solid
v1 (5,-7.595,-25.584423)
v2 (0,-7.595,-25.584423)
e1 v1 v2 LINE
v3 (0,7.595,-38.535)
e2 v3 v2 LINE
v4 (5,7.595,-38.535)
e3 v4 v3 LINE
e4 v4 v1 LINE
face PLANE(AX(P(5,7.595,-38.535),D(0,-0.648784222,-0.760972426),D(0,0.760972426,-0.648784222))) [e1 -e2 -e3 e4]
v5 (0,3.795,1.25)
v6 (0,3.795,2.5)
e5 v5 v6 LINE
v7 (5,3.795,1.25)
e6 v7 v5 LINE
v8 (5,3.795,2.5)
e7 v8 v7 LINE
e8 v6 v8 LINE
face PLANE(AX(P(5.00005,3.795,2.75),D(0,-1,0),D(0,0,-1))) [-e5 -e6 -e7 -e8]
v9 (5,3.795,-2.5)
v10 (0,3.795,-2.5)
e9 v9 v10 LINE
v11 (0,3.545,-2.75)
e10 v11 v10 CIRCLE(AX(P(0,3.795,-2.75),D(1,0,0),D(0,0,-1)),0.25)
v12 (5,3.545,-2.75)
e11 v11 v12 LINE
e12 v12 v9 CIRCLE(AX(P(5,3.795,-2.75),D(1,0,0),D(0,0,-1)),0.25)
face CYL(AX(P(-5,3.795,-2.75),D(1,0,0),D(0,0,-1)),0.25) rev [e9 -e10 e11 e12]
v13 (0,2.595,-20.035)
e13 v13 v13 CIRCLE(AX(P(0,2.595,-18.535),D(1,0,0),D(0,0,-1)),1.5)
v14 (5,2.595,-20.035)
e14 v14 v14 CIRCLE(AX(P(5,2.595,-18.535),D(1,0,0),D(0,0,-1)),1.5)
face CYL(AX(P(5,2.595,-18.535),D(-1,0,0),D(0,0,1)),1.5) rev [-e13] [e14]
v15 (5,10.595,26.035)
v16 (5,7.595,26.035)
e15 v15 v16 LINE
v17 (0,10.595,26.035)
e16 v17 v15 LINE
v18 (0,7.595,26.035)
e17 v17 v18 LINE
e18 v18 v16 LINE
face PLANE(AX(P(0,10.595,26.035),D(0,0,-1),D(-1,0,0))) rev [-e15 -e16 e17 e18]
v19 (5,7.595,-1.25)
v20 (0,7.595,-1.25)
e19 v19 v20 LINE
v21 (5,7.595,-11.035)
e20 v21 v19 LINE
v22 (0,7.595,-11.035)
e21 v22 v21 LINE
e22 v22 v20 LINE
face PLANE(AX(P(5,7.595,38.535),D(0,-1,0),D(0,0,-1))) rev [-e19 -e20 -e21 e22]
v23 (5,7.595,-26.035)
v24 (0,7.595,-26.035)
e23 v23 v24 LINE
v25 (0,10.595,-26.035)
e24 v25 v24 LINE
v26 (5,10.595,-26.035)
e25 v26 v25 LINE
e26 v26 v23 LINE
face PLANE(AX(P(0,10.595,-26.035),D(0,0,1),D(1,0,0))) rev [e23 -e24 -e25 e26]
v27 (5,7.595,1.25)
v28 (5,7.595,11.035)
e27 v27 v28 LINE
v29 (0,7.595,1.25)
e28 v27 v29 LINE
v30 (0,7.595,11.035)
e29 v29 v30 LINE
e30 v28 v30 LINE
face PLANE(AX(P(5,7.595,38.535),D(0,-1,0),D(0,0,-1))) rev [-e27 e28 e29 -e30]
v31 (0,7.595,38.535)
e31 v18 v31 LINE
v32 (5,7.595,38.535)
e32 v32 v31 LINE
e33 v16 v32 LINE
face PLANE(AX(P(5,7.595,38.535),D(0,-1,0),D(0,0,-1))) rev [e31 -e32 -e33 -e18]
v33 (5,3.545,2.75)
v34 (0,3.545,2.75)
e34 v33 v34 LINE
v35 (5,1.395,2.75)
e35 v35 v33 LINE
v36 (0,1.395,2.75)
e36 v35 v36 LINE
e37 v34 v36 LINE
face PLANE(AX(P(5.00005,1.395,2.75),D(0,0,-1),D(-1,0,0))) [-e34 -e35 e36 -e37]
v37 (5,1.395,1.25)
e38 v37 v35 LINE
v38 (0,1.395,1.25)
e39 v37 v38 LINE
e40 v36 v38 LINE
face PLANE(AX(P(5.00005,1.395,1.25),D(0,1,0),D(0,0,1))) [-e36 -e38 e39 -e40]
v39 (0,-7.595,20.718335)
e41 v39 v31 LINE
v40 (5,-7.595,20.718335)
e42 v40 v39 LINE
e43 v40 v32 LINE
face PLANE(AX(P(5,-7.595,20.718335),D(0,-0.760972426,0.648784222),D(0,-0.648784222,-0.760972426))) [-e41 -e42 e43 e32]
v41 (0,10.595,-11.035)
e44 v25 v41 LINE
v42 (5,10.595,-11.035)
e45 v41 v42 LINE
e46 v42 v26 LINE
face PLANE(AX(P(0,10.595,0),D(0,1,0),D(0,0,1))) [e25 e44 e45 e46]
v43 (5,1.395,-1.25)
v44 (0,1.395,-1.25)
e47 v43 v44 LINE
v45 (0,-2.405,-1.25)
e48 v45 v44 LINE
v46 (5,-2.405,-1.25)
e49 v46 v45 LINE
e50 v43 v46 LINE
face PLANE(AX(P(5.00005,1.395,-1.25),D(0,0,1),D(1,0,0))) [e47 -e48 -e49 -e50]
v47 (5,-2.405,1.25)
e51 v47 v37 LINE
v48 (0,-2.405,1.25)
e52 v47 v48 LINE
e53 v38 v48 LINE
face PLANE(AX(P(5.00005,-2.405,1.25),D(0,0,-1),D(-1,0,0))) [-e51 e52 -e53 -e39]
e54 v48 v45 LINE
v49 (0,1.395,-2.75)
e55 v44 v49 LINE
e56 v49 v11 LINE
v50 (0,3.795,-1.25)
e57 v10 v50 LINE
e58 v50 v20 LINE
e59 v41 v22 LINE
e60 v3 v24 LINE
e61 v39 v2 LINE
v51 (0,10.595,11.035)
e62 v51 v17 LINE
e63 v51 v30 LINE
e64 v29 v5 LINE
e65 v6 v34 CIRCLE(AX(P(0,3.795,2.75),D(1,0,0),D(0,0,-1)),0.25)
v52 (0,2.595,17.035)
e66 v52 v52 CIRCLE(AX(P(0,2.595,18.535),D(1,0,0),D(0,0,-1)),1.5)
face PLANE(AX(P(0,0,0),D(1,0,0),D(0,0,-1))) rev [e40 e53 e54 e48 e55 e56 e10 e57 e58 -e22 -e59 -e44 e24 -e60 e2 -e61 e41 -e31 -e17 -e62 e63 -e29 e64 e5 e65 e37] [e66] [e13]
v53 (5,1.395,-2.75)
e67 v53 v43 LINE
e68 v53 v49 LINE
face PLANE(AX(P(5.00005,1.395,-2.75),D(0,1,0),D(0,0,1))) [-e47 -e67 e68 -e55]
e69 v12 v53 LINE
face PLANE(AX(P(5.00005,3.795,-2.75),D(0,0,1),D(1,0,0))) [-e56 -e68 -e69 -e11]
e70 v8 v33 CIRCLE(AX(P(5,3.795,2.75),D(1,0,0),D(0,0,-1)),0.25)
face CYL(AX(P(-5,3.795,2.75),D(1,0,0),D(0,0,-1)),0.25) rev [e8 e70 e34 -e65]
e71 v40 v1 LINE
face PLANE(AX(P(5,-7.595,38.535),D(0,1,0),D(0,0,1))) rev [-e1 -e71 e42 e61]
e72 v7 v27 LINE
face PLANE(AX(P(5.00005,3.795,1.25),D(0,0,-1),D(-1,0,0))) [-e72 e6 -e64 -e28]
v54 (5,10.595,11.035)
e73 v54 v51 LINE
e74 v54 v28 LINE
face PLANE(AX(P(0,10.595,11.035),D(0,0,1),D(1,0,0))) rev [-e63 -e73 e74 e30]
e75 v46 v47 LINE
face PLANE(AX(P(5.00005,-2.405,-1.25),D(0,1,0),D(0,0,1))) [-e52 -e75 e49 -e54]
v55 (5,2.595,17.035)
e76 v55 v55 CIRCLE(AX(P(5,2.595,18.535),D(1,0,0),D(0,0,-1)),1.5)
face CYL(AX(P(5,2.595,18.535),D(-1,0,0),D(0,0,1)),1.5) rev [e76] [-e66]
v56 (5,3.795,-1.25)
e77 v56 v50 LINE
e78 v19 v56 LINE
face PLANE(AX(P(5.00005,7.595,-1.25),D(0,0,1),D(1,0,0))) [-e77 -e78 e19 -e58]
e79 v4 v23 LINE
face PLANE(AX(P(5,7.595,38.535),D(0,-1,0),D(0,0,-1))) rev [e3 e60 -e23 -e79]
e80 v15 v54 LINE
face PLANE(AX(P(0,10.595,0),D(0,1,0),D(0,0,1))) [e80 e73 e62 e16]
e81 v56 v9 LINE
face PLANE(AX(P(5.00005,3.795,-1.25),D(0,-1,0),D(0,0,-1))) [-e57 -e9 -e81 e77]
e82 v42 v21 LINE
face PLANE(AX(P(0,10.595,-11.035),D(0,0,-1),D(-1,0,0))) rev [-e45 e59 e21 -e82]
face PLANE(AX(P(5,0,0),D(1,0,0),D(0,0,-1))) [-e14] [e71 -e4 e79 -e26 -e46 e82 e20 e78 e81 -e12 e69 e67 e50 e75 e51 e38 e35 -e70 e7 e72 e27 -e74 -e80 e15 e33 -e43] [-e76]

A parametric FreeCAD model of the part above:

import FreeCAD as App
import Part
import Sketcher
Q = App.Units.Quantity


def add_polygon(sketch, points):
    """Adds a closed chain of lines whose ends are joined by coincident constraints."""
    first, n = sketch.GeometryCount, len(points)
    for a, b in zip(points, points[1:] + points[:1]):
        sketch.addGeometry(Part.LineSegment(App.Vector(*a, 0), App.Vector(*b, 0)), False)
    for i in range(n):
        sketch.addConstraint(Sketcher.Constraint("Coincident", first + i, 2, first + (i + 1) % n, 1))

doc = App.newDocument("Part")
body = doc.addObject("PartDesign::Body", "Body")

sketch1 = body.newObject("Sketcher::SketchObject", "Sketch")
sketch1.AttachmentSupport = (doc.getObject("YZ_Plane"), [""])
sketch1.MapMode = "FlatFace"
add_polygon(sketch1, [(8, 39), (-8, 39), (-8, -39), (8, -39)])
sketch1.addConstraint([
    Sketcher.Constraint("Horizontal", 0),
    Sketcher.Constraint("Vertical", 1),
    Sketcher.Constraint("Horizontal", 2),
    Sketcher.Constraint("Vertical", 3),
    Sketcher.Constraint("Symmetric", 0, 2, 2, 2, -1, 1),
    Sketcher.Constraint("DistanceX", 0, 2, 0, 1, Q("15.19 mm")),
    Sketcher.Constraint("DistanceY", 1, 2, 1, 1, Q("77.07 mm")),
])
pad1 = body.newObject("PartDesign::Pad", "Pad")
pad1.Profile = sketch1
pad1.Length = 5

sketch2 = body.newObject("Sketcher::SketchObject", "Sketch001")
sketch2.AttachmentSupport = (doc.getObject("YZ_Plane"), [""])
sketch2.MapMode = "FlatFace"
add_polygon(sketch2, [(8, -39), (-8, -26), (-8, -39)])
add_polygon(sketch2, [(8, 39), (-8, 39), (-8, 21)])
sketch2.addConstraint([
    Sketcher.Constraint("Vertical", 1),
    Sketcher.Constraint("Horizontal", 2),
    Sketcher.Constraint("Horizontal", 3),
    Sketcher.Constraint("Vertical", 4),
    Sketcher.Constraint("Symmetric", 2, 2, 3, 2, -1, 1),
    Sketcher.Constraint("Perpendicular", 0, 5),
    Sketcher.Constraint("Vertical", 1, 2, 3, 2),
    Sketcher.Constraint("Vertical", 2, 2, 5, 2),
    Sketcher.Constraint("DistanceX", 2, 1, 2, 2, Q("15.19 mm")),
    Sketcher.Constraint("Angle", 0, Q("139.55 deg")),
    Sketcher.Constraint("DistanceY", 1, 2, 3, 2, Q("77.07 mm")),
])
pocket1 = body.newObject("PartDesign::Pocket", "Pocket")
pocket1.Profile = sketch2
pocket1.Type = "ThroughAll"
pocket1.Reversed = True

sketch3 = body.newObject("Sketcher::SketchObject", "Sketch002")
sketch3.AttachmentSupport = (doc.getObject("YZ_Plane"), [""])
sketch3.MapMode = "FlatFace"
sketch3.addGeometry([
    Part.Circle(App.Vector(2.6, 18.5, 0), App.Vector(0, 0, 1), 1.5),
    Part.Circle(App.Vector(2.6, -18.5, 0), App.Vector(0, 0, 1), 1.5),
], False)
sketch3.addConstraint([
    Sketcher.Constraint("Equal", 0, 1),
    Sketcher.Constraint("Symmetric", 0, 3, 1, 3, -1),
    Sketcher.Constraint("Diameter", 0, Q("3 mm")),
    Sketcher.Constraint("DistanceY", 1, 3, 0, 3, Q("37.07 mm")),
    Sketcher.Constraint("DistanceX", -1, 1, 0, 3, Q("2.595 mm")),
])
pocket2 = body.newObject("PartDesign::Pocket", "Pocket001")
pocket2.Profile = sketch3
pocket2.Type = "ThroughAll"
pocket2.Reversed = True

sketch4 = body.newObject("Sketcher::SketchObject", "Sketch003")
sketch4.AttachmentSupport = (doc.getObject("XZ_Plane"), [""])
sketch4.MapMode = "FlatFace"
sketch4.AttachmentOffset = App.Placement(App.Vector(0, 0, -7.595), App.Rotation())
add_polygon(sketch4, [(0, -26), (0, -11), (5, -11), (5, -26)])
add_polygon(sketch4, [(0, 11), (0, 26), (5, 26), (5, 11)])
sketch4.addConstraint([
    Sketcher.Constraint("Vertical", 0),
    Sketcher.Constraint("Horizontal", 1),
    Sketcher.Constraint("Vertical", 2),
    Sketcher.Constraint("Horizontal", 3),
    Sketcher.Constraint("Vertical", 4),
    Sketcher.Constraint("Horizontal", 5),
    Sketcher.Constraint("Vertical", 6),
    Sketcher.Constraint("Horizontal", 7),
    Sketcher.Constraint("Symmetric", 3, 2, 4, 2, -1, 1),
    Sketcher.Constraint("Symmetric", 1, 2, 6, 2, -1),
    Sketcher.Constraint("PointOnObject", 0, 2, -2),
    Sketcher.Constraint("DistanceX", 1, 1, 1, 2, Q("5 mm")),
    Sketcher.Constraint("DistanceY", 0, 1, 0, 2, Q("15 mm")),
    Sketcher.Constraint("DistanceY", 0, 2, 4, 2, Q("37.07 mm")),
])
pad2 = body.newObject("PartDesign::Pad", "Pad001")
pad2.Profile = sketch4
pad2.Length = 3
pad2.Reversed = True

sketch5 = body.newObject("Sketcher::SketchObject", "Sketch004")
sketch5.AttachmentSupport = (doc.getObject("YZ_Plane"), [""])
sketch5.MapMode = "FlatFace"
add_polygon(sketch5, [(1.4, 1.2), (-2.4, 1.2), (-2.4, -1.2), (1.4, -1.2), (1.4, -2.8), (3.8, -2.8), (3.8, -1.2), (7.6, -1.2), (7.6, 1.2), (3.8, 1.2), (3.8, 2.8), (1.4, 2.8)])
sketch5.addConstraint([
    Sketcher.Constraint("Horizontal", 0),
    Sketcher.Constraint("Vertical", 1),
    Sketcher.Constraint("Horizontal", 2),
    Sketcher.Constraint("Vertical", 3),
    Sketcher.Constraint("Horizontal", 4),
    Sketcher.Constraint("Vertical", 5),
    Sketcher.Constraint("Horizontal", 6),
    Sketcher.Constraint("Vertical", 7),
    Sketcher.Constraint("Horizontal", 8),
    Sketcher.Constraint("Vertical", 9),
    Sketcher.Constraint("Horizontal", 10),
    Sketcher.Constraint("Vertical", 11),
    Sketcher.Constraint("Symmetric", 5, 2, 8, 2, -1),
    Sketcher.Constraint("Symmetric", 3, 2, 10, 2, -1),
    Sketcher.Constraint("Horizontal", 2, 2, 5, 2),
    Sketcher.Constraint("Horizontal", 0, 2, 7, 2),
    Sketcher.Constraint("Equal", 2, 6),
    Sketcher.Constraint("DistanceX", 0, 2, 0, 1, Q("3.8 mm")),
    Sketcher.Constraint("DistanceX", 4, 1, 4, 2, Q("2.4 mm")),
    Sketcher.Constraint("DistanceY", 1, 2, 1, 1, Q("2.5 mm")),
    Sketcher.Constraint("DistanceY", 3, 2, 3, 1, Q("1.5 mm")),
    Sketcher.Constraint("DistanceX", 0, 2, -1, 1, Q("2.405 mm")),
])
pocket3 = body.newObject("PartDesign::Pocket", "Pocket002")
pocket3.Profile = sketch5
pocket3.Type = "ThroughAll"
pocket3.Reversed = True

sketch6 = body.newObject("Sketcher::SketchObject", "Sketch005")
sketch6.AttachmentSupport = (doc.getObject("YZ_Plane"), [""])
sketch6.MapMode = "FlatFace"
sketch6.AttachmentOffset = App.Placement(App.Vector(0, 0, 5), App.Rotation())
sketch6.addGeometry([
    Part.Circle(App.Vector(3.79, 2.75, 0), App.Vector(0, 0, 1), 0.25),
    Part.Circle(App.Vector(3.79, -2.75, 0), App.Vector(0, 0, 1), 0.25),
], False)
sketch6.addConstraint([
    Sketcher.Constraint("Equal", 0, 1),
    Sketcher.Constraint("Symmetric", 0, 3, 1, 3, -1),
    Sketcher.Constraint("Diameter", 0, Q("0.5 mm")),
    Sketcher.Constraint("DistanceY", 1, 3, 0, 3, Q("5.5 mm")),
    Sketcher.Constraint("DistanceX", -1, 1, 0, 3, Q("3.795 mm")),
])
pocket4 = body.newObject("PartDesign::Pocket", "Pocket003")
pocket4.Profile = sketch6
pocket4.Length = 10

doc.recompute()
